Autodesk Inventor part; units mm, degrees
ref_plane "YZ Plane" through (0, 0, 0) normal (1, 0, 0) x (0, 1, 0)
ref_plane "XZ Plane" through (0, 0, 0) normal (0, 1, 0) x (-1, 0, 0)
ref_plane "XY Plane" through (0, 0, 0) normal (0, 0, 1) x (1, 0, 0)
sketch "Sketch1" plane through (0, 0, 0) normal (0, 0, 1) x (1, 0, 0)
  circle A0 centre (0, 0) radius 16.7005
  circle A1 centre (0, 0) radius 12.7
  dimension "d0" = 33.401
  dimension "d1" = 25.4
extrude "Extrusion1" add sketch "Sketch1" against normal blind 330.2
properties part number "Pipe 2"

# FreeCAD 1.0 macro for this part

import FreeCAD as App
import Part
import Sketcher
Q = App.Units.Quantity

doc = App.newDocument("Part")
params = doc.addObject("Spreadsheet::Sheet", "Params")
for row, (alias, value) in enumerate([
    ("sketch1_diameter", "1 in"),
    ("sketch1_diameter2", "1.315 in"),
    ("pad1_length", "13 in"),
], start=1):
    params.set(f"A{row}", alias)
    params.set(f"B{row}", "=" + value)
    params.setAlias(f"B{row}", alias)

body = doc.addObject("PartDesign::Body", "Body")

# Sketch on XY plane
sketch1 = body.newObject("Sketcher::SketchObject", "Sketch")
sketch1.AttachmentSupport = (doc.getObject("XY_Plane"), [""])
sketch1.MapMode = "FlatFace"
sketch1.addGeometry([
    Part.Circle(App.Vector(0, 0, 0), App.Vector(0, 0, 1), 16.7005),
    Part.Circle(App.Vector(0, 0, 0), App.Vector(0, 0, 1), 12.7),
], False)
sketch1.addConstraint([
    Sketcher.Constraint("Coincident", 0, 3, -1, 1),
    Sketcher.Constraint("Coincident", 1, 3, -1, 1),
    Sketcher.Constraint("Diameter", 1, Q("1 in")),
    Sketcher.Constraint("Diameter", 0, Q("1.315 in")),
])
sketch1.setExpression("Constraints[2]", "Params.sketch1_diameter")
sketch1.setExpression("Constraints[3]", "Params.sketch1_diameter2")
pad1 = body.newObject("PartDesign::Pad", "Pad")
pad1.Profile = sketch1
pad1.setExpression("Length", "Params.pad1_length")
pad1.Reversed = True

doc.recompute()
